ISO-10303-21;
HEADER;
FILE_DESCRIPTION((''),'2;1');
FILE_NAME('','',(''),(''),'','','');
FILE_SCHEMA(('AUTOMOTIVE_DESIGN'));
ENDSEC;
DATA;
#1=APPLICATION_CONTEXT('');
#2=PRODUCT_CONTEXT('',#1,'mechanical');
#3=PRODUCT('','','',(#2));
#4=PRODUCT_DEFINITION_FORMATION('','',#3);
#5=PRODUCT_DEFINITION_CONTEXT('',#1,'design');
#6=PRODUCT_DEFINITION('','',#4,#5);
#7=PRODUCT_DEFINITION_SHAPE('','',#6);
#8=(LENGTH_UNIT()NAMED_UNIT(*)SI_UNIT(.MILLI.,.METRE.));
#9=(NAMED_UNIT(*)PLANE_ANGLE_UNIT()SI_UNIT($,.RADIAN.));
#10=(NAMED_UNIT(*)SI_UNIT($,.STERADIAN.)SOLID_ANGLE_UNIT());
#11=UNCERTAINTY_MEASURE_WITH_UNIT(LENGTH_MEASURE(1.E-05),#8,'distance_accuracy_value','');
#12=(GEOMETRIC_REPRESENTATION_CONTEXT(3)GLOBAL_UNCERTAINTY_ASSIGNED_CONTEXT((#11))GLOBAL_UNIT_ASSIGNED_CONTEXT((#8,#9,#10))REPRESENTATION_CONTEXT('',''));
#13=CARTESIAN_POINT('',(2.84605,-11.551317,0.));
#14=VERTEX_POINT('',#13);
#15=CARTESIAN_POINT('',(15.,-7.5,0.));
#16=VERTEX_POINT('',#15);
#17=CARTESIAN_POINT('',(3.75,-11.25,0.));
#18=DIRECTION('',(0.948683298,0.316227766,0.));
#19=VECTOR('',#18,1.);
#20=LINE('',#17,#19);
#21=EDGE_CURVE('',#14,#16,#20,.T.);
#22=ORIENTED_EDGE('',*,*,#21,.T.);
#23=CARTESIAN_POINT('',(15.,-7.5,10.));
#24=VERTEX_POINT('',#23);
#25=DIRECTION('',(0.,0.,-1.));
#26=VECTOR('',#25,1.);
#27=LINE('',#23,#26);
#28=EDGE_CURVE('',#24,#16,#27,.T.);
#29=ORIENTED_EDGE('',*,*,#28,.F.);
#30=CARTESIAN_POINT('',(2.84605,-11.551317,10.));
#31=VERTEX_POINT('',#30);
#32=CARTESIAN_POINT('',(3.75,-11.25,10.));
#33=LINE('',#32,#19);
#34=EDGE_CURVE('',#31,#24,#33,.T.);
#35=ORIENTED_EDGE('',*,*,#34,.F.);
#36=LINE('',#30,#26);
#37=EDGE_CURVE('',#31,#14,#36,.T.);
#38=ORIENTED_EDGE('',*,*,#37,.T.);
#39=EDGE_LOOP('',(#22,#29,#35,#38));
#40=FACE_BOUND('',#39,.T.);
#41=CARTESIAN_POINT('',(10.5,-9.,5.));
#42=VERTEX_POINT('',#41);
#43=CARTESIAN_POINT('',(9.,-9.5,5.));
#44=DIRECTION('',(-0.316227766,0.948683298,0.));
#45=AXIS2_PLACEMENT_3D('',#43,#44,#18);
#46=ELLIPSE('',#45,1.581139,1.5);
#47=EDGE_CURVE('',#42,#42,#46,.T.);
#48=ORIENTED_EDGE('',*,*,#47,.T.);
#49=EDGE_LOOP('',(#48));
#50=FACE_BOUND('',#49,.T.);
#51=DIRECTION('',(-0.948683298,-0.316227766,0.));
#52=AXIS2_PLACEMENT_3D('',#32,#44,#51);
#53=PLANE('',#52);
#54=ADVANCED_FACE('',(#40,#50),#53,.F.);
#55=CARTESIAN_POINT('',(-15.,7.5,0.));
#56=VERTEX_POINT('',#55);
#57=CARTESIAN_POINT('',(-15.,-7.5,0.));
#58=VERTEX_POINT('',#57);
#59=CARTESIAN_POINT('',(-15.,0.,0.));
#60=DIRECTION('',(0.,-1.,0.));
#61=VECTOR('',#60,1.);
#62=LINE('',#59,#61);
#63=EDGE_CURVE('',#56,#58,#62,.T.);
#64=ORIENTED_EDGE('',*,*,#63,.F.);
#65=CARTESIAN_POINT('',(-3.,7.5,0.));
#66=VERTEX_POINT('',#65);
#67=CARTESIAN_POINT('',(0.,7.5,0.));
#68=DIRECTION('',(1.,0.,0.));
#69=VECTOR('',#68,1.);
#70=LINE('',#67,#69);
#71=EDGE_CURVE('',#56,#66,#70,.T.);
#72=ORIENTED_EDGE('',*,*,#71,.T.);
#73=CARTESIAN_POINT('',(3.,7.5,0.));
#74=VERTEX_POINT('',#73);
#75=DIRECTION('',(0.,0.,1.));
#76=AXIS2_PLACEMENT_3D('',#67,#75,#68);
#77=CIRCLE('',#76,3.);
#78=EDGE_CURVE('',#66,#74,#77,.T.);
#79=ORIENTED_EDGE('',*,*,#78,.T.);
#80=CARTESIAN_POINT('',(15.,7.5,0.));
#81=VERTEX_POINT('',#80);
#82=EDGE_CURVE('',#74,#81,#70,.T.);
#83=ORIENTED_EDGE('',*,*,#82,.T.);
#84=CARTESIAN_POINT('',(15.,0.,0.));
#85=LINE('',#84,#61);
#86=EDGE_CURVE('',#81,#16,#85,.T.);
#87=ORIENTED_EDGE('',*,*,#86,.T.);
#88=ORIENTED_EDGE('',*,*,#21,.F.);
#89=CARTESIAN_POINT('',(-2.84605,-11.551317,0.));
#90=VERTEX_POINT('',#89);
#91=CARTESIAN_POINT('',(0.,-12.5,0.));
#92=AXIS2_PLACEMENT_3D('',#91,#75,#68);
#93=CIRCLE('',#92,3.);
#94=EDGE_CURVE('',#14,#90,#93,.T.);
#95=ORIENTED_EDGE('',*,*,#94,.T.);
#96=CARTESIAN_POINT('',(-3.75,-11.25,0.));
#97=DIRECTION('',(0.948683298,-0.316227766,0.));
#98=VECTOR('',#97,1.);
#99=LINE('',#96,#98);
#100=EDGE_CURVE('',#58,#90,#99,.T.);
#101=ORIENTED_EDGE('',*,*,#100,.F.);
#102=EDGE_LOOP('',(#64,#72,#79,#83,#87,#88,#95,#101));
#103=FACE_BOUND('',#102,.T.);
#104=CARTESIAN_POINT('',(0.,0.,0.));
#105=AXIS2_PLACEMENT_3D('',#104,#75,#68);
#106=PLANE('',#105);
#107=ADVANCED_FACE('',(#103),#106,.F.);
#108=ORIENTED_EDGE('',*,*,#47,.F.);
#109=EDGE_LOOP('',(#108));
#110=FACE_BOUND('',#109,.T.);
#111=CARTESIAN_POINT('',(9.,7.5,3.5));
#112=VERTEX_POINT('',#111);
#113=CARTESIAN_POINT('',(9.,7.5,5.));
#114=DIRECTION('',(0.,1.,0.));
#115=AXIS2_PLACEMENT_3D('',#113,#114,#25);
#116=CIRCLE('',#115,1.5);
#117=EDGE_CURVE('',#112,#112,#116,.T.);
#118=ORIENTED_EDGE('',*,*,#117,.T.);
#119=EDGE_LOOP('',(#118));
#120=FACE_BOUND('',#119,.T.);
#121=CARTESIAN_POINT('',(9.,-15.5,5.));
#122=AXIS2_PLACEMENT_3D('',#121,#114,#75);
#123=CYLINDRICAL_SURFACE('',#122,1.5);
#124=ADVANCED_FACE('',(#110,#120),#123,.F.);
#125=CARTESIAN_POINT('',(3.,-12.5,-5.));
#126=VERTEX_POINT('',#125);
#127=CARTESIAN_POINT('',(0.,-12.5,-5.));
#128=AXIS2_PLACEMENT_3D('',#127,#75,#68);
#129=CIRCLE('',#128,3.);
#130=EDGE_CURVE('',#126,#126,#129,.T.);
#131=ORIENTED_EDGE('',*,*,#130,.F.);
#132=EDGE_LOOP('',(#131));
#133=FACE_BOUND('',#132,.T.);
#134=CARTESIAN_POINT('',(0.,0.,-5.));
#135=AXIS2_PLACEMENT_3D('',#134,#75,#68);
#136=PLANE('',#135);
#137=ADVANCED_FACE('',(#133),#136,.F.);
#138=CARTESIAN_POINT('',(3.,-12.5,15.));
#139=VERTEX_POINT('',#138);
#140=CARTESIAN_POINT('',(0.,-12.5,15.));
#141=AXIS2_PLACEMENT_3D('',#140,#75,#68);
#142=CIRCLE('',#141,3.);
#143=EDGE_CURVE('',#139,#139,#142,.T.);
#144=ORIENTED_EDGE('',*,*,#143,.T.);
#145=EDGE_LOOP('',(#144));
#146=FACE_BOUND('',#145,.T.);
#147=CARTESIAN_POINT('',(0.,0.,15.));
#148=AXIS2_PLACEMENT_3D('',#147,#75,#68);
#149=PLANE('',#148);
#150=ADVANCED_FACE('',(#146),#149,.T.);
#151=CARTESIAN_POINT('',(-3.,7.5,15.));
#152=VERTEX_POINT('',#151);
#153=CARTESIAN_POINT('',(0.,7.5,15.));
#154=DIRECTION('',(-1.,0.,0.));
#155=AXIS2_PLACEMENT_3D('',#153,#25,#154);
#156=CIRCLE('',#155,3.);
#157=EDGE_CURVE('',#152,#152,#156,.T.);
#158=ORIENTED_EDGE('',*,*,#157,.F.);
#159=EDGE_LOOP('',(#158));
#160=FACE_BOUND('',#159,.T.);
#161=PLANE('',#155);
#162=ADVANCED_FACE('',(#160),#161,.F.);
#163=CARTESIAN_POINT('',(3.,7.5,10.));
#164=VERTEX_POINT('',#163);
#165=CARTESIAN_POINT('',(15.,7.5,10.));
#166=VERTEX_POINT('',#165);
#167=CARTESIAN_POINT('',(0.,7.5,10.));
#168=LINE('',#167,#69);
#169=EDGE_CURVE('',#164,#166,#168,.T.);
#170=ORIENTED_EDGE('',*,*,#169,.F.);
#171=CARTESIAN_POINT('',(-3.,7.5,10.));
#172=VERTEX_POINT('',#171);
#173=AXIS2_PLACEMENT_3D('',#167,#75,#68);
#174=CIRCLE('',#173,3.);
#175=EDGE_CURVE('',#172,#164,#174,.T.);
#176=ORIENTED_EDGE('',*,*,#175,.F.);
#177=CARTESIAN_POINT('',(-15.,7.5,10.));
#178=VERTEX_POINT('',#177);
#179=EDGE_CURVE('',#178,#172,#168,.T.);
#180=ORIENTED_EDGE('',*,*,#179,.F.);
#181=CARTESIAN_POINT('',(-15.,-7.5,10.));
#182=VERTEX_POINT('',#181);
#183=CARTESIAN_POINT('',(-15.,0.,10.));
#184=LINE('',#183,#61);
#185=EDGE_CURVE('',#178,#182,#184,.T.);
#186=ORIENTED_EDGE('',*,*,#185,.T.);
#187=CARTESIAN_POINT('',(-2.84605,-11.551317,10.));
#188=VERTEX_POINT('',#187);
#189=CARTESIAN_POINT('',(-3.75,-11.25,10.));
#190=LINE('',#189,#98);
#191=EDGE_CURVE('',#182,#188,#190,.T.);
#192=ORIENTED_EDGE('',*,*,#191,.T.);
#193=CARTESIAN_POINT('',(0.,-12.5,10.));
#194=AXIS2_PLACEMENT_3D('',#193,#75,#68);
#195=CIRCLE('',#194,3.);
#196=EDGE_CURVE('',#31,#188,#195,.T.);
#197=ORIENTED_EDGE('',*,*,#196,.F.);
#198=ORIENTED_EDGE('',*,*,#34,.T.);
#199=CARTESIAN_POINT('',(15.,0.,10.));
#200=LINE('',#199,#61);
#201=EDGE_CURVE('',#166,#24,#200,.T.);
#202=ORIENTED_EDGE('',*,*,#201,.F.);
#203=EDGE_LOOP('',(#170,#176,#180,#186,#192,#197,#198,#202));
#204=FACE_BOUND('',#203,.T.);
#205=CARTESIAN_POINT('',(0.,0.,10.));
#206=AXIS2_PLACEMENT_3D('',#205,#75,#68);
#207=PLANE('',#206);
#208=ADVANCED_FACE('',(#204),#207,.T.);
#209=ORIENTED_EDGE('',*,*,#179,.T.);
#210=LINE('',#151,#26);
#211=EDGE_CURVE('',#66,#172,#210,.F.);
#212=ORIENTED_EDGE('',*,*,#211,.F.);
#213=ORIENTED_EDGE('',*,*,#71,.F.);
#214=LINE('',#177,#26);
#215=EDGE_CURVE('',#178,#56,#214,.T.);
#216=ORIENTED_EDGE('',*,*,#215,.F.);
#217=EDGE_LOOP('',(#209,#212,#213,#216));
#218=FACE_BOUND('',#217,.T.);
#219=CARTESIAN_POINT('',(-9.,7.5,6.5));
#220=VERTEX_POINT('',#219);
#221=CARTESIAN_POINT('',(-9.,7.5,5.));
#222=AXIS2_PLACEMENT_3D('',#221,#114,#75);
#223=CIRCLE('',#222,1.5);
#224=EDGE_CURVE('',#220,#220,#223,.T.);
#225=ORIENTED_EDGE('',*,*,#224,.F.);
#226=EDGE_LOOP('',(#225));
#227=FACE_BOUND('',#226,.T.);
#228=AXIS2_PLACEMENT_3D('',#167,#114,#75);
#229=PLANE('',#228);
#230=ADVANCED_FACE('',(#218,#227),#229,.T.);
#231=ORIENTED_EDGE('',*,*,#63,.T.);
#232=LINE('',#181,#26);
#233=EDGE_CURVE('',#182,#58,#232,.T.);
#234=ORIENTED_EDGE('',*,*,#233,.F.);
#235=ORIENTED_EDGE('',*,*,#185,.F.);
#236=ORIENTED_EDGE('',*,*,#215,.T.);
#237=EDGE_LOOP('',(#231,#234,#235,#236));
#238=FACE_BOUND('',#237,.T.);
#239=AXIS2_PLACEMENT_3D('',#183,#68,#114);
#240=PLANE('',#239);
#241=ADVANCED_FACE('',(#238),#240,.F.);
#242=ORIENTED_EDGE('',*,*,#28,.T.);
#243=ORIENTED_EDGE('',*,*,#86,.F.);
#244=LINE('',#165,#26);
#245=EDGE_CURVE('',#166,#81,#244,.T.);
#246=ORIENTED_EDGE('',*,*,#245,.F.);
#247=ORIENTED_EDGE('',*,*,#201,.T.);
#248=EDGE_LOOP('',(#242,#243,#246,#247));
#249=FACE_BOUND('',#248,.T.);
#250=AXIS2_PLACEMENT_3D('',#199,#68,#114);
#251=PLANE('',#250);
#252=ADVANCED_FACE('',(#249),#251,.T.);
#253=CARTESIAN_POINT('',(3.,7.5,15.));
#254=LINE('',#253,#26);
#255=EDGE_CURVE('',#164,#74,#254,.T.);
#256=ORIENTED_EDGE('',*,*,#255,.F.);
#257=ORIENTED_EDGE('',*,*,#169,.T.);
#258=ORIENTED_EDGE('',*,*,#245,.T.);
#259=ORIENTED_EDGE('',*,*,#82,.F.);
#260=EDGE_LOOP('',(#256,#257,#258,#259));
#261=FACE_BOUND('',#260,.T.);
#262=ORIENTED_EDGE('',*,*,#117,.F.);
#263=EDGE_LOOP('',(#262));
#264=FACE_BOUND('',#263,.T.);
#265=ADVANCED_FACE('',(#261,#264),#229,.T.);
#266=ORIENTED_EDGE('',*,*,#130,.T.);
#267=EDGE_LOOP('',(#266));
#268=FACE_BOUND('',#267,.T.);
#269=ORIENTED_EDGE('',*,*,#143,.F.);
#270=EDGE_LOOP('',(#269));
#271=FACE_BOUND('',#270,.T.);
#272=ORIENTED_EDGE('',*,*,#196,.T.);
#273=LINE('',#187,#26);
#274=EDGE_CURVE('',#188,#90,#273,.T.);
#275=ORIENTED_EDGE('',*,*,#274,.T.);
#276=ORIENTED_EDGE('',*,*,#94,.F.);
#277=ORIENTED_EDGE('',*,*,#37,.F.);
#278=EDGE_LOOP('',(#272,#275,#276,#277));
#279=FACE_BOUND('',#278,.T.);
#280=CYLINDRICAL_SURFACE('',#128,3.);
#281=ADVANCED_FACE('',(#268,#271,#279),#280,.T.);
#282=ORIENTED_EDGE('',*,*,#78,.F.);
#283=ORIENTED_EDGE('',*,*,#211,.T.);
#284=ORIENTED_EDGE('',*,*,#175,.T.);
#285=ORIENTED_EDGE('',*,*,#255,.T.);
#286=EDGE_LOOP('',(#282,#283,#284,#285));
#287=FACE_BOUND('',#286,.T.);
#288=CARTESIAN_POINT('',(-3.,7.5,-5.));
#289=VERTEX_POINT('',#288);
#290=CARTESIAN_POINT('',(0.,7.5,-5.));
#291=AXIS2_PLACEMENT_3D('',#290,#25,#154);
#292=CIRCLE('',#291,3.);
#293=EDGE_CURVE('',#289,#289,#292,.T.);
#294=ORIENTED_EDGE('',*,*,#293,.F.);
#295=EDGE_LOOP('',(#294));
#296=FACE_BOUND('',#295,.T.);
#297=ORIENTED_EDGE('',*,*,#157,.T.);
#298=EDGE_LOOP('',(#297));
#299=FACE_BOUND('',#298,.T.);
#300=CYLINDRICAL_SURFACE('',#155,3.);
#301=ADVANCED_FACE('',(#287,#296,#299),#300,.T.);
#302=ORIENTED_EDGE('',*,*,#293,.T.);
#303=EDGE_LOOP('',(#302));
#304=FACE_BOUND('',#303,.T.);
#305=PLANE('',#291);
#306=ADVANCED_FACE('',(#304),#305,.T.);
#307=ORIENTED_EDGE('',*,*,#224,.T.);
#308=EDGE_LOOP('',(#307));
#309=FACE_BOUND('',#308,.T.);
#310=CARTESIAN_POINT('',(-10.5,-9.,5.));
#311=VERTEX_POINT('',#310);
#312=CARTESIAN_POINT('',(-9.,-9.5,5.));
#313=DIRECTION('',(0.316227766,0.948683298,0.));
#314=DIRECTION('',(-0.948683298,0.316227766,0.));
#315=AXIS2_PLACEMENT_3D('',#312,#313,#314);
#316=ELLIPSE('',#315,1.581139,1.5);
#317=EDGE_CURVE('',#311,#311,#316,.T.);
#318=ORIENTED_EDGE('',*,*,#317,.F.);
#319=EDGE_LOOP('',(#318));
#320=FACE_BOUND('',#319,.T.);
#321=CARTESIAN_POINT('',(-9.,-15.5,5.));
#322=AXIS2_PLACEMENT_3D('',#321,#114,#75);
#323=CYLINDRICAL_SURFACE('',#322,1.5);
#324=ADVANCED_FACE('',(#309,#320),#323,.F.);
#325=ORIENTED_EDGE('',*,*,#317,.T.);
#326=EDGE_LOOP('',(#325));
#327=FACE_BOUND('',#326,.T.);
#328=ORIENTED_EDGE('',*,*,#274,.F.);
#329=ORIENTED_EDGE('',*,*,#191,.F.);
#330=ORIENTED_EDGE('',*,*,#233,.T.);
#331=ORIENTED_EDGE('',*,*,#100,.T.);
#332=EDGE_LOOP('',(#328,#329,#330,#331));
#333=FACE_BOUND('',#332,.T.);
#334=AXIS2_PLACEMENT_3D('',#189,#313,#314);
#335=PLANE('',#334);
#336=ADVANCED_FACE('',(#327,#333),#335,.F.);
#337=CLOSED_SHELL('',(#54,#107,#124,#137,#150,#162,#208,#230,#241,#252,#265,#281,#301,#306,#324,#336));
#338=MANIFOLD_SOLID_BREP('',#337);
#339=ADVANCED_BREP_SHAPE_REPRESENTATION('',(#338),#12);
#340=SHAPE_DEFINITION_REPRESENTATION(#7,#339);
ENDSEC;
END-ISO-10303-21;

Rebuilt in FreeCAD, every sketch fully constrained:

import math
import FreeCAD as App
import Part
import Sketcher
from FreeCAD import Vector
Q = App.Units.Quantity

doc = App.newDocument("Part")
body = doc.addObject("PartDesign::Body", "Body")

# Sketch on XY plane
sketch1 = doc.addObject("Sketcher::SketchObject", "Sketch")
body.addObject(sketch1)
sketch1.AttachmentSupport = (doc.XY_Plane, [""])
sketch1.MapMode = "FlatFace"
sketch1.addGeometry([
    Part.LineSegment(Vector(-15, 7.5, 0), Vector(-15, -7.5, 0)),  # 0
    Part.LineSegment(Vector(-15, -7.5, 0), Vector(-2.8, -11.6, 0)),  # 1
    Part.ArcOfCircle(Part.Circle(Vector(0, -12.5, 0), Vector(0, 0, 1), 3), math.radians(18), math.radians(162)),  # 2
    Part.LineSegment(Vector(2.8, -11.6, 0), Vector(15, -7.5, 0)),  # 3
    Part.LineSegment(Vector(15, -7.5, 0), Vector(15, 7.5, 0)),  # 4
    Part.LineSegment(Vector(15, 7.5, 0), Vector(-15, 7.5, 0)),  # 5
], False)
sketch1.addConstraint([
    Sketcher.Constraint("Coincident", 0, 2, 1, 1),
    Sketcher.Constraint("Coincident", 1, 2, 2, 2),
    Sketcher.Constraint("Coincident", 2, 1, 3, 1),
    Sketcher.Constraint("Coincident", 3, 2, 4, 1),
    Sketcher.Constraint("Coincident", 4, 2, 5, 1),
    Sketcher.Constraint("Coincident", 5, 2, 0, 1),
    Sketcher.Constraint("Vertical", 0),
    Sketcher.Constraint("Vertical", 4),
    Sketcher.Constraint("Horizontal", 5),
    Sketcher.Constraint("Symmetric", 0, 2, 4, 2, -1, 1),
    Sketcher.Constraint("Symmetric", 1, 2, 2, 1, -2),
    Sketcher.Constraint("Horizontal", 0, 2, 3, 2),
    Sketcher.Constraint("Radius", 2, Q("3 mm")),
    Sketcher.Constraint("DistanceX", 5, 2, 5, 1, Q("30 mm")),
    Sketcher.Constraint("DistanceY", 0, 2, 0, 1, Q("15 mm")),
    Sketcher.Constraint("DistanceY", 2, 3, 0, 2, Q("5 mm")),
    Sketcher.Constraint("DistanceX", 1, 2, 2, 1, Q("5.6921 mm")),
])
pad1 = doc.addObject("PartDesign::Pad", "Pad")
body.addObject(pad1)
pad1.Profile = sketch1
pad1.Length = 10

# Sketch on XY plane
sketch2 = doc.addObject("Sketcher::SketchObject", "Sketch001")
body.addObject(sketch2)
sketch2.AttachmentSupport = (doc.XY_Plane, [""])
sketch2.MapMode = "FlatFace"
sketch2.addGeometry(Part.Circle(Vector(0, -12.5, 0), Vector(0, 0, 1), 3), False)
sketch2.addConstraint([
    Sketcher.Constraint("PointOnObject", 0, 3, -2),
    Sketcher.Constraint("Diameter", 0, Q("6 mm")),
    Sketcher.Constraint("DistanceY", 0, 3, -1, 1, Q("12.5 mm")),
])
pad2 = doc.addObject("PartDesign::Pad", "Pad001")
body.addObject(pad2)
pad2.Profile = sketch2
pad2.Type = "TwoLengths"
pad2.Length = 15
pad2.Length2 = 5

# Sketch on XZ plane
sketch3 = doc.addObject("Sketcher::SketchObject", "Sketch002")
body.addObject(sketch3)
sketch3.AttachmentSupport = (doc.XZ_Plane, [""])
sketch3.MapMode = "FlatFace"
sketch3.AttachmentOffset = App.Placement(Vector(0, 0, -7.5), App.Rotation())
sketch3.addGeometry([
    Part.Circle(Vector(-9, 5, 0), Vector(0, 0, 1), 1.5),
    Part.Circle(Vector(9, 5, 0), Vector(0, 0, 1), 1.5),
], False)
sketch3.addConstraint([
    Sketcher.Constraint("Equal", 0, 1),
    Sketcher.Constraint("Symmetric", 0, 3, 1, 3, -2),
    Sketcher.Constraint("Diameter", 0, Q("3 mm")),
    Sketcher.Constraint("DistanceX", 0, 3, -1, 1, Q("9 mm")),
    Sketcher.Constraint("DistanceY", -1, 1, 0, 3, Q("5 mm")),
])
pocket1 = doc.addObject("PartDesign::Pocket", "Pocket")
body.addObject(pocket1)
pocket1.Profile = sketch3
pocket1.Type = "ThroughAll"
pocket1.Reversed = True

# Sketch on XY plane
sketch4 = doc.addObject("Sketcher::SketchObject", "Sketch003")
body.addObject(sketch4)
sketch4.AttachmentSupport = (doc.XY_Plane, [""])
sketch4.MapMode = "FlatFace"
sketch4.addGeometry(Part.Circle(Vector(0, 7.5, 0), Vector(0, 0, 1), 3), False)
sketch4.addConstraint([
    Sketcher.Constraint("PointOnObject", 0, 3, -2),
    Sketcher.Constraint("Diameter", 0, Q("6 mm")),
    Sketcher.Constraint("DistanceY", -1, 1, 0, 3, Q("7.5 mm")),
])
pad3 = doc.addObject("PartDesign::Pad", "Pad002")
body.addObject(pad3)
pad3.Profile = sketch4
pad3.Type = "TwoLengths"
pad3.Length = 5
pad3.Length2 = 15
pad3.Reversed = True

doc.recompute()
